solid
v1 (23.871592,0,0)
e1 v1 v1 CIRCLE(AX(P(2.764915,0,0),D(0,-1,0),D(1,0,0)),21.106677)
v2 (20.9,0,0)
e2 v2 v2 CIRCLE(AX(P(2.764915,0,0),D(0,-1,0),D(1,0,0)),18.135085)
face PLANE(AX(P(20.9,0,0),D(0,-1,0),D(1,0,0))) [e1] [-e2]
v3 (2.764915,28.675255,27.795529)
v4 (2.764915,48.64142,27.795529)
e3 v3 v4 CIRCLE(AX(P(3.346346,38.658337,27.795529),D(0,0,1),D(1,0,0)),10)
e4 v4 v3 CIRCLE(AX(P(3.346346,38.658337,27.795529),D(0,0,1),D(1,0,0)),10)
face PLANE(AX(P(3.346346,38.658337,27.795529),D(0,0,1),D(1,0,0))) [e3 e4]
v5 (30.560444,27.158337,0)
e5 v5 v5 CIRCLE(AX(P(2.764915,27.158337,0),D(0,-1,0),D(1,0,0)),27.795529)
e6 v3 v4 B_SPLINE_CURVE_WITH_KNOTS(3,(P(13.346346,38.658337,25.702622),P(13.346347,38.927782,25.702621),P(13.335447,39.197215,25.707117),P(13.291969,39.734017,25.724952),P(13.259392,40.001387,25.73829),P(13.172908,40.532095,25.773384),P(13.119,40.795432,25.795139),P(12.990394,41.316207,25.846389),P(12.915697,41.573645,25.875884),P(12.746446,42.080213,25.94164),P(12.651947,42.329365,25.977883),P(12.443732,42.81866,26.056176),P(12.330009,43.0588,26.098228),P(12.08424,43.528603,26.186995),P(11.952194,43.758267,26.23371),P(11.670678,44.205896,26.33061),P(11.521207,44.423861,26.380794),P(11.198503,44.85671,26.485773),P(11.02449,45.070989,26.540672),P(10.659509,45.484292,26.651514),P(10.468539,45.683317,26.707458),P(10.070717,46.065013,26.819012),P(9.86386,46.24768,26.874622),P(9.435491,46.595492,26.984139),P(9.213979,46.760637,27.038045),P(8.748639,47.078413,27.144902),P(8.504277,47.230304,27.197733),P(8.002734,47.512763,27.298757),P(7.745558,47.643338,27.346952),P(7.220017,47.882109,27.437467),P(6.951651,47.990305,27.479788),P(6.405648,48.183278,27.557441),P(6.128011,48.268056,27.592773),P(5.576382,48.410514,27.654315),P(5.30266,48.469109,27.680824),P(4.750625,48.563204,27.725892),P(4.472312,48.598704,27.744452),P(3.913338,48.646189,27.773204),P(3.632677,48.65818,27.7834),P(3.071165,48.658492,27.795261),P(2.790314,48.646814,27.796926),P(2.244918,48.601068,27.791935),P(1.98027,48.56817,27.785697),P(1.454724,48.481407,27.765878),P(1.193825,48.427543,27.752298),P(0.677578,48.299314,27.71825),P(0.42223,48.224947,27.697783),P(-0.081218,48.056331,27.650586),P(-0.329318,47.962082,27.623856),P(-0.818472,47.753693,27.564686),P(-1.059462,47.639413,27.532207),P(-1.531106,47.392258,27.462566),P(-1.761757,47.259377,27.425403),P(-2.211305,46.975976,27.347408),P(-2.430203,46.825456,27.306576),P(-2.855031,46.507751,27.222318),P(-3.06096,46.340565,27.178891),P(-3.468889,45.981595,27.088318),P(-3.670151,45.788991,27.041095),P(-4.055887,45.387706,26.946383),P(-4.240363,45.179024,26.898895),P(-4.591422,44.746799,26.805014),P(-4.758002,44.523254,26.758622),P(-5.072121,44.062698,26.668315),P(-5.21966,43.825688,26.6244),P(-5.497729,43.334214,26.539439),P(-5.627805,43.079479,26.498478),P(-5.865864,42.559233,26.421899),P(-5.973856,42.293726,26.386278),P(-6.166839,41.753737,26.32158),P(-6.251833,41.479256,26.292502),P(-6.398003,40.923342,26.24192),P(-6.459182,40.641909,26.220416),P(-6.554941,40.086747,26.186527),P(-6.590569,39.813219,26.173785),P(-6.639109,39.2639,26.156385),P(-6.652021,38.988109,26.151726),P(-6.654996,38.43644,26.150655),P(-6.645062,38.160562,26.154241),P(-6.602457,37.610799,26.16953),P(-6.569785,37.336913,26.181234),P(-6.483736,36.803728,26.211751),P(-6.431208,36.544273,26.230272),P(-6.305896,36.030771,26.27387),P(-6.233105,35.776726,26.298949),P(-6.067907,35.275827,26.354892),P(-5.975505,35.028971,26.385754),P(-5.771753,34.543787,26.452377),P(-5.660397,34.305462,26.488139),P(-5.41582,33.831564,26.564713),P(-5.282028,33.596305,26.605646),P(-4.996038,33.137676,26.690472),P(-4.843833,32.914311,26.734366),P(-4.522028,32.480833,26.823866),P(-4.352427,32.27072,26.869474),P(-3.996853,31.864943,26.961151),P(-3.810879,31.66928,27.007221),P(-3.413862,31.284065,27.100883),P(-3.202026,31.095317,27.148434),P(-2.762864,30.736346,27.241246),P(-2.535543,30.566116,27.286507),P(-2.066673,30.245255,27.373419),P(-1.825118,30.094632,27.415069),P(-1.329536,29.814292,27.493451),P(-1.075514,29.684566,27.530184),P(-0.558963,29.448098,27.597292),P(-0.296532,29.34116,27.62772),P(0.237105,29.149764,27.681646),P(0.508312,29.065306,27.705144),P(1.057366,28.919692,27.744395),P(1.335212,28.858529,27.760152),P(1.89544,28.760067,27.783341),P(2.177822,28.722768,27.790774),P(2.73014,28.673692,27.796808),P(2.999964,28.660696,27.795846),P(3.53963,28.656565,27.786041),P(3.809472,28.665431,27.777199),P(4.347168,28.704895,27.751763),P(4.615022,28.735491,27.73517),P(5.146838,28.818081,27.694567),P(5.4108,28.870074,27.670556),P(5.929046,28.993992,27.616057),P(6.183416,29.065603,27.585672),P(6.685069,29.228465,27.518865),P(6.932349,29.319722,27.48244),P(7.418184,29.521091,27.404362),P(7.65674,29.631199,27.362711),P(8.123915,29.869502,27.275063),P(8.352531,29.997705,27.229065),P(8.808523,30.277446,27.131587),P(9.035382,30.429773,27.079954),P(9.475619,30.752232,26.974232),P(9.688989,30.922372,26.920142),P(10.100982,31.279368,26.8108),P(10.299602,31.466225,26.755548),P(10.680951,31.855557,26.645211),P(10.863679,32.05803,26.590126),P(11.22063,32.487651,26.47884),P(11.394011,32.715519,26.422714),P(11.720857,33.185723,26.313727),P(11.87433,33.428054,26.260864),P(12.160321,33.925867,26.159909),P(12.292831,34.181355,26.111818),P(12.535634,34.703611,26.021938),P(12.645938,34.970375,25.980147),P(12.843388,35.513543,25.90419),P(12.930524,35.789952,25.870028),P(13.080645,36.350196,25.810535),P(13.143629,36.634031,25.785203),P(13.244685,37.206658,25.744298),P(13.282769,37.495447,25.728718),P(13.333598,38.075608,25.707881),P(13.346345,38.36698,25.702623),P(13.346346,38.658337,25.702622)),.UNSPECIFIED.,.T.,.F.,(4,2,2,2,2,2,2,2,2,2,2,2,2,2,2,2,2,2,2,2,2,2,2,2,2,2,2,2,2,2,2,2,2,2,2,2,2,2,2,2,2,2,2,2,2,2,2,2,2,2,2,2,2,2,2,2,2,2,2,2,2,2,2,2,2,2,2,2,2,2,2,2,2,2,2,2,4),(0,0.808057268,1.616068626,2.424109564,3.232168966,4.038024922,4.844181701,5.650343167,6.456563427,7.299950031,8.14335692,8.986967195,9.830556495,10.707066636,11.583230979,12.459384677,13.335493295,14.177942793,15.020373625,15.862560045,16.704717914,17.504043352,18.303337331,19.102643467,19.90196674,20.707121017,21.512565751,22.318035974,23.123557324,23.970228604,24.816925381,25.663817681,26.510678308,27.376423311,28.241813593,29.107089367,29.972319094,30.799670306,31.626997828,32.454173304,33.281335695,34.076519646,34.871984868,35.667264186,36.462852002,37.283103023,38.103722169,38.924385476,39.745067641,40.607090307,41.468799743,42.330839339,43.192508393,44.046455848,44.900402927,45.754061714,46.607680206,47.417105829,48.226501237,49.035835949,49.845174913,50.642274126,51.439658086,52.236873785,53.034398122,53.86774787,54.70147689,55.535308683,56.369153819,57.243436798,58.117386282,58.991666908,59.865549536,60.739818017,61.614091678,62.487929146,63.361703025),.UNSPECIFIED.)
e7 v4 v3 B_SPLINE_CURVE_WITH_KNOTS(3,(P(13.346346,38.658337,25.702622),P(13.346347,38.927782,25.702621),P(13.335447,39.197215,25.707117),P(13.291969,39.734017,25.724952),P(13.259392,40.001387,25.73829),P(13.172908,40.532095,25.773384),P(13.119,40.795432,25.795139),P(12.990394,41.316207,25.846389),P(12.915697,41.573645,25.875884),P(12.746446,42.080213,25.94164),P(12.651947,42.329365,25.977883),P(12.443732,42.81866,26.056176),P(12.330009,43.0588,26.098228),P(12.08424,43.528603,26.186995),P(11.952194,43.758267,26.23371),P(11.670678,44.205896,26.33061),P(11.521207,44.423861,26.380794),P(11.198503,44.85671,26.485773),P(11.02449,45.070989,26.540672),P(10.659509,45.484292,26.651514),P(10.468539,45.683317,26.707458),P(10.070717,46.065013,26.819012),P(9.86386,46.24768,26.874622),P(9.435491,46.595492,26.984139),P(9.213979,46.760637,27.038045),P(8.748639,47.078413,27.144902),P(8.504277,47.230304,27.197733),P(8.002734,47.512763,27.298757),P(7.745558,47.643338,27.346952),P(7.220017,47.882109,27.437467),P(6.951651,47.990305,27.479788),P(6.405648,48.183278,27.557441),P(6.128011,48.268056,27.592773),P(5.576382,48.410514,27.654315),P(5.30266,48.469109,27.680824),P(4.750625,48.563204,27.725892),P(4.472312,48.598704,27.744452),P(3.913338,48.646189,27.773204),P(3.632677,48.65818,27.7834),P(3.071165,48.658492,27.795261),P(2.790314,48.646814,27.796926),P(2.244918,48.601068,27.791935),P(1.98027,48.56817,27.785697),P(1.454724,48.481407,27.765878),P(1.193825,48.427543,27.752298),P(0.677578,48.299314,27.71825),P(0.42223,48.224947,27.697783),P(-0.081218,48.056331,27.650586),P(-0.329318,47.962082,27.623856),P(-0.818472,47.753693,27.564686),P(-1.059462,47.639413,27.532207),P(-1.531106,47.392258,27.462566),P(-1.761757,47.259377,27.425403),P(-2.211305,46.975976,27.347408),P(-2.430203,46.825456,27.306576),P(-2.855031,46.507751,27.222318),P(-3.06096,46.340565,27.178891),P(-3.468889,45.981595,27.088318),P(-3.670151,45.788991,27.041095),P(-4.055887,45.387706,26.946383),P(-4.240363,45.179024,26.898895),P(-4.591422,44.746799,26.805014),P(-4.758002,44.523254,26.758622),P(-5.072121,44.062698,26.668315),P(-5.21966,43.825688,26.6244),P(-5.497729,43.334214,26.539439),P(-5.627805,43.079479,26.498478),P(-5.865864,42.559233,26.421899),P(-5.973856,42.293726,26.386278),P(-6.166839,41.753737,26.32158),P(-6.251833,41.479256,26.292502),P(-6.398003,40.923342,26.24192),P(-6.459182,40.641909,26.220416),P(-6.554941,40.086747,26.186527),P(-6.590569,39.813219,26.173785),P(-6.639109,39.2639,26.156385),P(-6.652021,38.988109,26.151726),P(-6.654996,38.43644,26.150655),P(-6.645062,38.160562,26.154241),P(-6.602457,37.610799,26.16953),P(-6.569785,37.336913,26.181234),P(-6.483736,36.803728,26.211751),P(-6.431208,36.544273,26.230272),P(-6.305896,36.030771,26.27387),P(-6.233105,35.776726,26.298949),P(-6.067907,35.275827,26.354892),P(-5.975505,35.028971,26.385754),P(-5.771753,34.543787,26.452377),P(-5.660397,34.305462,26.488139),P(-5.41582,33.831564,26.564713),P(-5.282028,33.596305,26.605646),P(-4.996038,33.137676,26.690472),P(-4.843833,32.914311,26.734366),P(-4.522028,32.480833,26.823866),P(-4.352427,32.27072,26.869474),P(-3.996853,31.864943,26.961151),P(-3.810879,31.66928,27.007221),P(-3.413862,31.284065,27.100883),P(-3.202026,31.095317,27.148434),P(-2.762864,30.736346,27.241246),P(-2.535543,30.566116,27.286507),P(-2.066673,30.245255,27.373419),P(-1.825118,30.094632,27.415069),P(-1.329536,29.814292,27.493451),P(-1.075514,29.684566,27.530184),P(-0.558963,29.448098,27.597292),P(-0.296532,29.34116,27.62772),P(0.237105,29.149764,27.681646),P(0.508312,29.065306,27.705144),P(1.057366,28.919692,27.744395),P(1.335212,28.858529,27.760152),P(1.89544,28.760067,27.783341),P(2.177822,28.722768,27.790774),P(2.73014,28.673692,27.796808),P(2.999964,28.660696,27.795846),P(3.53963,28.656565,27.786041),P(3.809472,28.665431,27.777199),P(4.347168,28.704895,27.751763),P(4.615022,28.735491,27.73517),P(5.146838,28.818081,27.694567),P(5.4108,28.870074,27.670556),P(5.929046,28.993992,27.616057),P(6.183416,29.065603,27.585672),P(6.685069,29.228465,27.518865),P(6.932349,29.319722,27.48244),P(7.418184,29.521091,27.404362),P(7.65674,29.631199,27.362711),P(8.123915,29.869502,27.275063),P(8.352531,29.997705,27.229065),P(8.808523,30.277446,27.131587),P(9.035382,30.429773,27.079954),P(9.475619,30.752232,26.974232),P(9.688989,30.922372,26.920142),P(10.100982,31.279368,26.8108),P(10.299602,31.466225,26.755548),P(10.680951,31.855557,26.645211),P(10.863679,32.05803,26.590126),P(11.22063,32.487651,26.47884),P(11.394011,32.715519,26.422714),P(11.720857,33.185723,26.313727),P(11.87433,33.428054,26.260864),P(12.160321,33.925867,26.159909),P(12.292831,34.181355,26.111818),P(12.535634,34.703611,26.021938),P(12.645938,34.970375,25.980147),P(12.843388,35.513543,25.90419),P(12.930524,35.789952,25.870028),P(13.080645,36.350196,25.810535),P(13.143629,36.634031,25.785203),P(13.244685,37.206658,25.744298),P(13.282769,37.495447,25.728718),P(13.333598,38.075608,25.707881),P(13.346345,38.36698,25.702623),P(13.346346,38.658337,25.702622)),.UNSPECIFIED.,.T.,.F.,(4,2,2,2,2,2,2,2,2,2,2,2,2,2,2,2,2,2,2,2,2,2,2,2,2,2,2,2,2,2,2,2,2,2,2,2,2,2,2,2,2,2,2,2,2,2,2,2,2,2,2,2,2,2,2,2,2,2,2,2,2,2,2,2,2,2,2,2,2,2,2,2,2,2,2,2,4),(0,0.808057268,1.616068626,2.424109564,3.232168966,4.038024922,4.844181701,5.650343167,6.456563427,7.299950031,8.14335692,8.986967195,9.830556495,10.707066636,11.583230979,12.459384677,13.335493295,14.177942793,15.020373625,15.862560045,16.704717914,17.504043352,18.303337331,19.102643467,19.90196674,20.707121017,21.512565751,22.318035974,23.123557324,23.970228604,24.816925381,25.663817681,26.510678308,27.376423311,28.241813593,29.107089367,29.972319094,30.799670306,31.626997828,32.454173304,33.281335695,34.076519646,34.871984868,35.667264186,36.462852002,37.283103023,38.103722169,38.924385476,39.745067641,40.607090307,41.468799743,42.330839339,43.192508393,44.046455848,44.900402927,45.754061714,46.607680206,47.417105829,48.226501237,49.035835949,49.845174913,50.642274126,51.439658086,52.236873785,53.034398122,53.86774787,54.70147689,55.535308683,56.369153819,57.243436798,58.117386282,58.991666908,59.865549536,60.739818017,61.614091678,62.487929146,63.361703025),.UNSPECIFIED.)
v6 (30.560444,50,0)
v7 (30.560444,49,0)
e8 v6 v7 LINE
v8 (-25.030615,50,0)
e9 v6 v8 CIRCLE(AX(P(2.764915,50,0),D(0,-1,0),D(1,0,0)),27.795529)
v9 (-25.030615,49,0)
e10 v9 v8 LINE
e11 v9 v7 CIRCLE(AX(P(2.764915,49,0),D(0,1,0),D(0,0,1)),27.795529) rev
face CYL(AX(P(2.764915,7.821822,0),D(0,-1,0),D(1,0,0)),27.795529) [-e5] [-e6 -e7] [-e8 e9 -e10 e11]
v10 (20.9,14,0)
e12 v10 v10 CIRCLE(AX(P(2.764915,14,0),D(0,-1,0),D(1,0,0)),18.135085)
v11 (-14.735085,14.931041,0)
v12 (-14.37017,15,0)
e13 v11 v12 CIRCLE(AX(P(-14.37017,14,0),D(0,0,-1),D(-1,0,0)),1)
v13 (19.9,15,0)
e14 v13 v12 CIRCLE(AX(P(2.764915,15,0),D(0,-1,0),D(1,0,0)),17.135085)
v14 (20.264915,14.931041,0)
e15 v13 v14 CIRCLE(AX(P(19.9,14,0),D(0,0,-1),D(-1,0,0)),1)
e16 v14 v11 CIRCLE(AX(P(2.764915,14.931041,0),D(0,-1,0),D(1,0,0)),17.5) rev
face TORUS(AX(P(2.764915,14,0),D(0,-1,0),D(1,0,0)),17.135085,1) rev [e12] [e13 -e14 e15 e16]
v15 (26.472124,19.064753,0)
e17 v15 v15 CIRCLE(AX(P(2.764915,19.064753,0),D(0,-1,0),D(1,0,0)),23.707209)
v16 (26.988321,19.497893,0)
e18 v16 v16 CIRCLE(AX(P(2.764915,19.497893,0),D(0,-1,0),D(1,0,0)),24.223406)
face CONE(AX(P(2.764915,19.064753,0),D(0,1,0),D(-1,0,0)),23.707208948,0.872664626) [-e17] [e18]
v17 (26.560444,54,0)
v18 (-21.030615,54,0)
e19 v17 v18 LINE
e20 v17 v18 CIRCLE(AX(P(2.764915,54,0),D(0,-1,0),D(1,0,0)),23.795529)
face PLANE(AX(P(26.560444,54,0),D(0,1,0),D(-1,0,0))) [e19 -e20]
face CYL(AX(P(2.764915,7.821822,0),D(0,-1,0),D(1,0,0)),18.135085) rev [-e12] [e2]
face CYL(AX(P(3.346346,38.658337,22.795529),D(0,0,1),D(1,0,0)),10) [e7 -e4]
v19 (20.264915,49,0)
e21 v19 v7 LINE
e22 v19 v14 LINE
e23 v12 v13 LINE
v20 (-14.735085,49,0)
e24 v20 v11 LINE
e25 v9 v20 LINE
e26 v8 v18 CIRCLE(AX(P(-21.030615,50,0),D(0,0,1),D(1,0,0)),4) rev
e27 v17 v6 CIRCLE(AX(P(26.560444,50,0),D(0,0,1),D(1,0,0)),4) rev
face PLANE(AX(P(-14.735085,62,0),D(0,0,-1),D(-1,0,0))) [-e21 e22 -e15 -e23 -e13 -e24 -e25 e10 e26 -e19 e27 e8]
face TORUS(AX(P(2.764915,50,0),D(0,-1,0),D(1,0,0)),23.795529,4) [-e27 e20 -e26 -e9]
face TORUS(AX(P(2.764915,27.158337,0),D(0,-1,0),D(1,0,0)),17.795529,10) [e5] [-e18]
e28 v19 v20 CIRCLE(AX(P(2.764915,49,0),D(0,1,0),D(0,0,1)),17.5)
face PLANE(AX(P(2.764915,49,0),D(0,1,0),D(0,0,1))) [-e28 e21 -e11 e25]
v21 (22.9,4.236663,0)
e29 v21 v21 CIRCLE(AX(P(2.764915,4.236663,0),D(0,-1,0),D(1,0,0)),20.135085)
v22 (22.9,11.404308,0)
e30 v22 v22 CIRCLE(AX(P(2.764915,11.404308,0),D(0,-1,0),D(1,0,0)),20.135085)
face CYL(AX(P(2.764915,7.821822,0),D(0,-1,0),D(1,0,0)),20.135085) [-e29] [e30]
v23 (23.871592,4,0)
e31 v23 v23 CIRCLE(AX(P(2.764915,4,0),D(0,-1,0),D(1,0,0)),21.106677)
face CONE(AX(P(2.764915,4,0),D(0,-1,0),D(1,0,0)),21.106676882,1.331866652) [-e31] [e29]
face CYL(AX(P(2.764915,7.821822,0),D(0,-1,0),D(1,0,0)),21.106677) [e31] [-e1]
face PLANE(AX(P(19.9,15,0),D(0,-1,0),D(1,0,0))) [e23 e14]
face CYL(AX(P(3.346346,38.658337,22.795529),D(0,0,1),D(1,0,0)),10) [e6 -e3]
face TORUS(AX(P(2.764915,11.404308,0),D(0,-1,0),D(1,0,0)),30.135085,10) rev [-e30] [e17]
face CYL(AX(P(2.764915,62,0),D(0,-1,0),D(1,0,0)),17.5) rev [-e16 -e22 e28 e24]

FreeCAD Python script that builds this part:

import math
import FreeCAD as App
import Part
import Sketcher

V = App.Vector
Q = App.Units.Quantity

doc = App.newDocument("Part")
body = doc.addObject("PartDesign::Body", "Body")

# Sketch on XY plane
sketch1 = doc.addObject("Sketcher::SketchObject", "Sketch")
body.addObject(sketch1)
sketch1.AttachmentSupport = (doc.XY_Plane, [""])
sketch1.MapMode = "FlatFace"
sketch1.addGeometry([
    Part.LineSegment(V(20.9, 0, 0), V(23.9, 0, 0)),  # 0
    Part.LineSegment(V(23.9, 0, 0), V(23.9, 4, 0)),  # 1
    Part.LineSegment(V(23.9, 4, 0), V(22.9, 4.2, 0)),  # 2
    Part.LineSegment(V(22.9, 4.2, 0), V(22.9, 11.4, 0)),  # 3
    Part.ArcOfCircle(Part.Circle(V(32.9, 11.4, 0), V(0, 0, 1), 10), math.radians(130), math.radians(180)),  # 4
    Part.LineSegment(V(26.5, 19.1, 0), V(27, 19.5, 0)),  # 5
    Part.ArcOfCircle(Part.Circle(V(20.6, 27.2, 0), V(0, 0, 1), 10), math.radians(-50), math.radians(0)),  # 6
    Part.LineSegment(V(30.6, 27.2, 0), V(30.6, 50, 0)),  # 7
    Part.ArcOfCircle(Part.Circle(V(26.6, 50, 0), V(0, 0, 1), 4), math.radians(0), math.radians(90)),  # 8
    Part.LineSegment(V(26.6, 54, 0), V(2.8, 54, 0)),  # 9
    Part.LineSegment(V(2.8, 54, 0), V(2.8, 15, 0)),  # 10
    Part.LineSegment(V(2.8, 15, 0), V(19.9, 15, 0)),  # 11
    Part.ArcOfCircle(Part.Circle(V(19.9, 14, 0), V(0, 0, 1), 1), math.radians(0), math.radians(90)),  # 12
    Part.LineSegment(V(20.9, 14, 0), V(20.9, 0, 0)),  # 13
], False)
sketch1.addGeometry(Part.LineSegment(V(2.8, 0, 0), V(2.8, 54, 0)), True)  # axis
sketch1.addConstraint([
    Sketcher.Constraint("Coincident", 0, 2, 1, 1),
    Sketcher.Constraint("Coincident", 1, 2, 2, 1),
    Sketcher.Constraint("Coincident", 2, 2, 3, 1),
    Sketcher.Constraint("Tangent", 3, 2, 4, 2),
    Sketcher.Constraint("Tangent", 4, 1, 5, 1),
    Sketcher.Constraint("Tangent", 5, 2, 6, 1),
    Sketcher.Constraint("Tangent", 6, 2, 7, 1),
    Sketcher.Constraint("Tangent", 7, 2, 8, 1),
    Sketcher.Constraint("Tangent", 8, 2, 9, 1),
    Sketcher.Constraint("Coincident", 9, 2, 10, 1),
    Sketcher.Constraint("Coincident", 10, 2, 11, 1),
    Sketcher.Constraint("Tangent", 11, 2, 12, 2),
    Sketcher.Constraint("Tangent", 12, 1, 13, 1),
    Sketcher.Constraint("Coincident", 13, 2, 0, 1),
    Sketcher.Constraint("Horizontal", 0),
    Sketcher.Constraint("Vertical", 1),
    Sketcher.Constraint("Vertical", 3),
    Sketcher.Constraint("Vertical", 7),
    Sketcher.Constraint("Horizontal", 9),
    Sketcher.Constraint("Vertical", 10),
    Sketcher.Constraint("Horizontal", 11),
    Sketcher.Constraint("Vertical", 13),
    Sketcher.Constraint("Vertical", 14),
    Sketcher.Constraint("Coincident", 14, 2, 9, 2),
    Sketcher.Constraint("Equal", 4, 6),
    Sketcher.Constraint("PointOnObject", 0, 2, -1),
    Sketcher.Constraint("PointOnObject", 14, 1, -1),
    Sketcher.Constraint("Radius", 4, 10.0),
    Sketcher.Constraint("Radius", 8, 4.0),
    Sketcher.Constraint("Radius", 12, 1.0),
    Sketcher.Constraint("DistanceY", 1, 1, 1, 2, 4.0),
    Sketcher.Constraint("DistanceY", 10, 2, 10, 1, 39.0),
    Sketcher.Constraint("DistanceY", 13, 2, 13, 1, 14.0),
    Sketcher.Constraint("Angle", 5, Q("40 deg")),
    Sketcher.Constraint("Distance", 2, 1.0),
    Sketcher.Constraint("DistanceX", 12, 3, 4, 3, 13.0),
    Sketcher.Constraint("DistanceX", -1, 1, 4, 3, 32.9),
    Sketcher.Constraint("DistanceX", 0, 1, 0, 2, 2.971592),
    Sketcher.Constraint("DistanceX", 9, 2, 9, 1, 23.795529),
    Sketcher.Constraint("DistanceX", 11, 1, 11, 2, 17.135085),
    Sketcher.Constraint("DistanceY", 3, 1, 3, 2, 7.167645),
])
revolution = doc.addObject("PartDesign::Revolution", "Revolution")
body.addObject(revolution)
revolution.Profile = sketch1
revolution.ReferenceAxis = (sketch1, ["Axis0"])
revolution.Angle = 360

# Sketch on XY plane
sketch2 = doc.addObject("Sketcher::SketchObject", "Sketch001")
body.addObject(sketch2)
sketch2.AttachmentSupport = (doc.XY_Plane, [""])
sketch2.MapMode = "FlatFace"
sketch2.AttachmentOffset = App.Placement(V(0, 0, 27.795529), App.Rotation())
sketch2.addGeometry(Part.Circle(V(3, 39, 0), V(0, 0, 1), 10), False)
sketch2.addConstraint([
    Sketcher.Constraint("Diameter", 0, 20.0),
    Sketcher.Constraint("DistanceX", -1, 1, 0, 3, 3.346346),
    Sketcher.Constraint("DistanceY", -1, 1, 0, 3, 38.658337),
])
pad1 = doc.addObject("PartDesign::Pad", "Pad")
body.addObject(pad1)
pad1.Profile = sketch2
pad1.Length = 5
pad1.Reversed = True

# Sketch on XZ plane
sketch3 = doc.addObject("Sketcher::SketchObject", "Sketch002")
body.addObject(sketch3)
sketch3.AttachmentSupport = (doc.XZ_Plane, [""])
sketch3.MapMode = "FlatFace"
sketch3.AttachmentOffset = App.Placement(V(0, 0, -17), App.Rotation())
sketch3.addGeometry([
    Part.LineSegment(V(-15, 0, 0), V(20, 0, 0)),
    Part.ArcOfCircle(Part.Circle(V(3, 0, 0), V(0, 0, 1), 18), math.radians(180), math.radians(360)),
], False)
sketch3.addConstraint([
    Sketcher.Constraint("Coincident", 0, 1, 1, 1),
    Sketcher.Constraint("Coincident", 1, 2, 0, 2),
    Sketcher.Constraint("Horizontal", 0),
    Sketcher.Constraint("PointOnObject", 1, 3, -1),
    Sketcher.Constraint("PointOnObject", 0, 1, -1),
    Sketcher.Constraint("Radius", 1, 17.5),
    Sketcher.Constraint("DistanceX", -1, 1, 1, 3, 2.764915),
])
pocket1 = doc.addObject("PartDesign::Pocket", "Pocket")
body.addObject(pocket1)
pocket1.Profile = sketch3
pocket1.Type = "ThroughAll"
pocket1.Midplane = True

# Sketch on XZ plane
sketch4 = doc.addObject("Sketcher::SketchObject", "Sketch003")
body.addObject(sketch4)
sketch4.AttachmentSupport = (doc.XZ_Plane, [""])
sketch4.MapMode = "FlatFace"
sketch4.AttachmentOffset = App.Placement(V(0, 0, -54), App.Rotation())
sketch4.addGeometry([
    Part.LineSegment(V(-25, 0, 0), V(31, 0, 0)),
    Part.ArcOfCircle(Part.Circle(V(3, 0, 0), V(0, 0, 1), 28), math.radians(180), math.radians(360)),
], False)
sketch4.addConstraint([
    Sketcher.Constraint("Coincident", 0, 1, 1, 1),
    Sketcher.Constraint("Coincident", 1, 2, 0, 2),
    Sketcher.Constraint("Horizontal", 0),
    Sketcher.Constraint("PointOnObject", 1, 3, -1),
    Sketcher.Constraint("PointOnObject", 0, 1, -1),
    Sketcher.Constraint("Radius", 1, 28.0),
    Sketcher.Constraint("DistanceX", -1, 1, 1, 3, 2.764915),
])
pocket2 = doc.addObject("PartDesign::Pocket", "Pocket001")
body.addObject(pocket2)
pocket2.Profile = sketch4
pocket2.Length = 5
pocket2.Reversed = True

doc.recompute()
